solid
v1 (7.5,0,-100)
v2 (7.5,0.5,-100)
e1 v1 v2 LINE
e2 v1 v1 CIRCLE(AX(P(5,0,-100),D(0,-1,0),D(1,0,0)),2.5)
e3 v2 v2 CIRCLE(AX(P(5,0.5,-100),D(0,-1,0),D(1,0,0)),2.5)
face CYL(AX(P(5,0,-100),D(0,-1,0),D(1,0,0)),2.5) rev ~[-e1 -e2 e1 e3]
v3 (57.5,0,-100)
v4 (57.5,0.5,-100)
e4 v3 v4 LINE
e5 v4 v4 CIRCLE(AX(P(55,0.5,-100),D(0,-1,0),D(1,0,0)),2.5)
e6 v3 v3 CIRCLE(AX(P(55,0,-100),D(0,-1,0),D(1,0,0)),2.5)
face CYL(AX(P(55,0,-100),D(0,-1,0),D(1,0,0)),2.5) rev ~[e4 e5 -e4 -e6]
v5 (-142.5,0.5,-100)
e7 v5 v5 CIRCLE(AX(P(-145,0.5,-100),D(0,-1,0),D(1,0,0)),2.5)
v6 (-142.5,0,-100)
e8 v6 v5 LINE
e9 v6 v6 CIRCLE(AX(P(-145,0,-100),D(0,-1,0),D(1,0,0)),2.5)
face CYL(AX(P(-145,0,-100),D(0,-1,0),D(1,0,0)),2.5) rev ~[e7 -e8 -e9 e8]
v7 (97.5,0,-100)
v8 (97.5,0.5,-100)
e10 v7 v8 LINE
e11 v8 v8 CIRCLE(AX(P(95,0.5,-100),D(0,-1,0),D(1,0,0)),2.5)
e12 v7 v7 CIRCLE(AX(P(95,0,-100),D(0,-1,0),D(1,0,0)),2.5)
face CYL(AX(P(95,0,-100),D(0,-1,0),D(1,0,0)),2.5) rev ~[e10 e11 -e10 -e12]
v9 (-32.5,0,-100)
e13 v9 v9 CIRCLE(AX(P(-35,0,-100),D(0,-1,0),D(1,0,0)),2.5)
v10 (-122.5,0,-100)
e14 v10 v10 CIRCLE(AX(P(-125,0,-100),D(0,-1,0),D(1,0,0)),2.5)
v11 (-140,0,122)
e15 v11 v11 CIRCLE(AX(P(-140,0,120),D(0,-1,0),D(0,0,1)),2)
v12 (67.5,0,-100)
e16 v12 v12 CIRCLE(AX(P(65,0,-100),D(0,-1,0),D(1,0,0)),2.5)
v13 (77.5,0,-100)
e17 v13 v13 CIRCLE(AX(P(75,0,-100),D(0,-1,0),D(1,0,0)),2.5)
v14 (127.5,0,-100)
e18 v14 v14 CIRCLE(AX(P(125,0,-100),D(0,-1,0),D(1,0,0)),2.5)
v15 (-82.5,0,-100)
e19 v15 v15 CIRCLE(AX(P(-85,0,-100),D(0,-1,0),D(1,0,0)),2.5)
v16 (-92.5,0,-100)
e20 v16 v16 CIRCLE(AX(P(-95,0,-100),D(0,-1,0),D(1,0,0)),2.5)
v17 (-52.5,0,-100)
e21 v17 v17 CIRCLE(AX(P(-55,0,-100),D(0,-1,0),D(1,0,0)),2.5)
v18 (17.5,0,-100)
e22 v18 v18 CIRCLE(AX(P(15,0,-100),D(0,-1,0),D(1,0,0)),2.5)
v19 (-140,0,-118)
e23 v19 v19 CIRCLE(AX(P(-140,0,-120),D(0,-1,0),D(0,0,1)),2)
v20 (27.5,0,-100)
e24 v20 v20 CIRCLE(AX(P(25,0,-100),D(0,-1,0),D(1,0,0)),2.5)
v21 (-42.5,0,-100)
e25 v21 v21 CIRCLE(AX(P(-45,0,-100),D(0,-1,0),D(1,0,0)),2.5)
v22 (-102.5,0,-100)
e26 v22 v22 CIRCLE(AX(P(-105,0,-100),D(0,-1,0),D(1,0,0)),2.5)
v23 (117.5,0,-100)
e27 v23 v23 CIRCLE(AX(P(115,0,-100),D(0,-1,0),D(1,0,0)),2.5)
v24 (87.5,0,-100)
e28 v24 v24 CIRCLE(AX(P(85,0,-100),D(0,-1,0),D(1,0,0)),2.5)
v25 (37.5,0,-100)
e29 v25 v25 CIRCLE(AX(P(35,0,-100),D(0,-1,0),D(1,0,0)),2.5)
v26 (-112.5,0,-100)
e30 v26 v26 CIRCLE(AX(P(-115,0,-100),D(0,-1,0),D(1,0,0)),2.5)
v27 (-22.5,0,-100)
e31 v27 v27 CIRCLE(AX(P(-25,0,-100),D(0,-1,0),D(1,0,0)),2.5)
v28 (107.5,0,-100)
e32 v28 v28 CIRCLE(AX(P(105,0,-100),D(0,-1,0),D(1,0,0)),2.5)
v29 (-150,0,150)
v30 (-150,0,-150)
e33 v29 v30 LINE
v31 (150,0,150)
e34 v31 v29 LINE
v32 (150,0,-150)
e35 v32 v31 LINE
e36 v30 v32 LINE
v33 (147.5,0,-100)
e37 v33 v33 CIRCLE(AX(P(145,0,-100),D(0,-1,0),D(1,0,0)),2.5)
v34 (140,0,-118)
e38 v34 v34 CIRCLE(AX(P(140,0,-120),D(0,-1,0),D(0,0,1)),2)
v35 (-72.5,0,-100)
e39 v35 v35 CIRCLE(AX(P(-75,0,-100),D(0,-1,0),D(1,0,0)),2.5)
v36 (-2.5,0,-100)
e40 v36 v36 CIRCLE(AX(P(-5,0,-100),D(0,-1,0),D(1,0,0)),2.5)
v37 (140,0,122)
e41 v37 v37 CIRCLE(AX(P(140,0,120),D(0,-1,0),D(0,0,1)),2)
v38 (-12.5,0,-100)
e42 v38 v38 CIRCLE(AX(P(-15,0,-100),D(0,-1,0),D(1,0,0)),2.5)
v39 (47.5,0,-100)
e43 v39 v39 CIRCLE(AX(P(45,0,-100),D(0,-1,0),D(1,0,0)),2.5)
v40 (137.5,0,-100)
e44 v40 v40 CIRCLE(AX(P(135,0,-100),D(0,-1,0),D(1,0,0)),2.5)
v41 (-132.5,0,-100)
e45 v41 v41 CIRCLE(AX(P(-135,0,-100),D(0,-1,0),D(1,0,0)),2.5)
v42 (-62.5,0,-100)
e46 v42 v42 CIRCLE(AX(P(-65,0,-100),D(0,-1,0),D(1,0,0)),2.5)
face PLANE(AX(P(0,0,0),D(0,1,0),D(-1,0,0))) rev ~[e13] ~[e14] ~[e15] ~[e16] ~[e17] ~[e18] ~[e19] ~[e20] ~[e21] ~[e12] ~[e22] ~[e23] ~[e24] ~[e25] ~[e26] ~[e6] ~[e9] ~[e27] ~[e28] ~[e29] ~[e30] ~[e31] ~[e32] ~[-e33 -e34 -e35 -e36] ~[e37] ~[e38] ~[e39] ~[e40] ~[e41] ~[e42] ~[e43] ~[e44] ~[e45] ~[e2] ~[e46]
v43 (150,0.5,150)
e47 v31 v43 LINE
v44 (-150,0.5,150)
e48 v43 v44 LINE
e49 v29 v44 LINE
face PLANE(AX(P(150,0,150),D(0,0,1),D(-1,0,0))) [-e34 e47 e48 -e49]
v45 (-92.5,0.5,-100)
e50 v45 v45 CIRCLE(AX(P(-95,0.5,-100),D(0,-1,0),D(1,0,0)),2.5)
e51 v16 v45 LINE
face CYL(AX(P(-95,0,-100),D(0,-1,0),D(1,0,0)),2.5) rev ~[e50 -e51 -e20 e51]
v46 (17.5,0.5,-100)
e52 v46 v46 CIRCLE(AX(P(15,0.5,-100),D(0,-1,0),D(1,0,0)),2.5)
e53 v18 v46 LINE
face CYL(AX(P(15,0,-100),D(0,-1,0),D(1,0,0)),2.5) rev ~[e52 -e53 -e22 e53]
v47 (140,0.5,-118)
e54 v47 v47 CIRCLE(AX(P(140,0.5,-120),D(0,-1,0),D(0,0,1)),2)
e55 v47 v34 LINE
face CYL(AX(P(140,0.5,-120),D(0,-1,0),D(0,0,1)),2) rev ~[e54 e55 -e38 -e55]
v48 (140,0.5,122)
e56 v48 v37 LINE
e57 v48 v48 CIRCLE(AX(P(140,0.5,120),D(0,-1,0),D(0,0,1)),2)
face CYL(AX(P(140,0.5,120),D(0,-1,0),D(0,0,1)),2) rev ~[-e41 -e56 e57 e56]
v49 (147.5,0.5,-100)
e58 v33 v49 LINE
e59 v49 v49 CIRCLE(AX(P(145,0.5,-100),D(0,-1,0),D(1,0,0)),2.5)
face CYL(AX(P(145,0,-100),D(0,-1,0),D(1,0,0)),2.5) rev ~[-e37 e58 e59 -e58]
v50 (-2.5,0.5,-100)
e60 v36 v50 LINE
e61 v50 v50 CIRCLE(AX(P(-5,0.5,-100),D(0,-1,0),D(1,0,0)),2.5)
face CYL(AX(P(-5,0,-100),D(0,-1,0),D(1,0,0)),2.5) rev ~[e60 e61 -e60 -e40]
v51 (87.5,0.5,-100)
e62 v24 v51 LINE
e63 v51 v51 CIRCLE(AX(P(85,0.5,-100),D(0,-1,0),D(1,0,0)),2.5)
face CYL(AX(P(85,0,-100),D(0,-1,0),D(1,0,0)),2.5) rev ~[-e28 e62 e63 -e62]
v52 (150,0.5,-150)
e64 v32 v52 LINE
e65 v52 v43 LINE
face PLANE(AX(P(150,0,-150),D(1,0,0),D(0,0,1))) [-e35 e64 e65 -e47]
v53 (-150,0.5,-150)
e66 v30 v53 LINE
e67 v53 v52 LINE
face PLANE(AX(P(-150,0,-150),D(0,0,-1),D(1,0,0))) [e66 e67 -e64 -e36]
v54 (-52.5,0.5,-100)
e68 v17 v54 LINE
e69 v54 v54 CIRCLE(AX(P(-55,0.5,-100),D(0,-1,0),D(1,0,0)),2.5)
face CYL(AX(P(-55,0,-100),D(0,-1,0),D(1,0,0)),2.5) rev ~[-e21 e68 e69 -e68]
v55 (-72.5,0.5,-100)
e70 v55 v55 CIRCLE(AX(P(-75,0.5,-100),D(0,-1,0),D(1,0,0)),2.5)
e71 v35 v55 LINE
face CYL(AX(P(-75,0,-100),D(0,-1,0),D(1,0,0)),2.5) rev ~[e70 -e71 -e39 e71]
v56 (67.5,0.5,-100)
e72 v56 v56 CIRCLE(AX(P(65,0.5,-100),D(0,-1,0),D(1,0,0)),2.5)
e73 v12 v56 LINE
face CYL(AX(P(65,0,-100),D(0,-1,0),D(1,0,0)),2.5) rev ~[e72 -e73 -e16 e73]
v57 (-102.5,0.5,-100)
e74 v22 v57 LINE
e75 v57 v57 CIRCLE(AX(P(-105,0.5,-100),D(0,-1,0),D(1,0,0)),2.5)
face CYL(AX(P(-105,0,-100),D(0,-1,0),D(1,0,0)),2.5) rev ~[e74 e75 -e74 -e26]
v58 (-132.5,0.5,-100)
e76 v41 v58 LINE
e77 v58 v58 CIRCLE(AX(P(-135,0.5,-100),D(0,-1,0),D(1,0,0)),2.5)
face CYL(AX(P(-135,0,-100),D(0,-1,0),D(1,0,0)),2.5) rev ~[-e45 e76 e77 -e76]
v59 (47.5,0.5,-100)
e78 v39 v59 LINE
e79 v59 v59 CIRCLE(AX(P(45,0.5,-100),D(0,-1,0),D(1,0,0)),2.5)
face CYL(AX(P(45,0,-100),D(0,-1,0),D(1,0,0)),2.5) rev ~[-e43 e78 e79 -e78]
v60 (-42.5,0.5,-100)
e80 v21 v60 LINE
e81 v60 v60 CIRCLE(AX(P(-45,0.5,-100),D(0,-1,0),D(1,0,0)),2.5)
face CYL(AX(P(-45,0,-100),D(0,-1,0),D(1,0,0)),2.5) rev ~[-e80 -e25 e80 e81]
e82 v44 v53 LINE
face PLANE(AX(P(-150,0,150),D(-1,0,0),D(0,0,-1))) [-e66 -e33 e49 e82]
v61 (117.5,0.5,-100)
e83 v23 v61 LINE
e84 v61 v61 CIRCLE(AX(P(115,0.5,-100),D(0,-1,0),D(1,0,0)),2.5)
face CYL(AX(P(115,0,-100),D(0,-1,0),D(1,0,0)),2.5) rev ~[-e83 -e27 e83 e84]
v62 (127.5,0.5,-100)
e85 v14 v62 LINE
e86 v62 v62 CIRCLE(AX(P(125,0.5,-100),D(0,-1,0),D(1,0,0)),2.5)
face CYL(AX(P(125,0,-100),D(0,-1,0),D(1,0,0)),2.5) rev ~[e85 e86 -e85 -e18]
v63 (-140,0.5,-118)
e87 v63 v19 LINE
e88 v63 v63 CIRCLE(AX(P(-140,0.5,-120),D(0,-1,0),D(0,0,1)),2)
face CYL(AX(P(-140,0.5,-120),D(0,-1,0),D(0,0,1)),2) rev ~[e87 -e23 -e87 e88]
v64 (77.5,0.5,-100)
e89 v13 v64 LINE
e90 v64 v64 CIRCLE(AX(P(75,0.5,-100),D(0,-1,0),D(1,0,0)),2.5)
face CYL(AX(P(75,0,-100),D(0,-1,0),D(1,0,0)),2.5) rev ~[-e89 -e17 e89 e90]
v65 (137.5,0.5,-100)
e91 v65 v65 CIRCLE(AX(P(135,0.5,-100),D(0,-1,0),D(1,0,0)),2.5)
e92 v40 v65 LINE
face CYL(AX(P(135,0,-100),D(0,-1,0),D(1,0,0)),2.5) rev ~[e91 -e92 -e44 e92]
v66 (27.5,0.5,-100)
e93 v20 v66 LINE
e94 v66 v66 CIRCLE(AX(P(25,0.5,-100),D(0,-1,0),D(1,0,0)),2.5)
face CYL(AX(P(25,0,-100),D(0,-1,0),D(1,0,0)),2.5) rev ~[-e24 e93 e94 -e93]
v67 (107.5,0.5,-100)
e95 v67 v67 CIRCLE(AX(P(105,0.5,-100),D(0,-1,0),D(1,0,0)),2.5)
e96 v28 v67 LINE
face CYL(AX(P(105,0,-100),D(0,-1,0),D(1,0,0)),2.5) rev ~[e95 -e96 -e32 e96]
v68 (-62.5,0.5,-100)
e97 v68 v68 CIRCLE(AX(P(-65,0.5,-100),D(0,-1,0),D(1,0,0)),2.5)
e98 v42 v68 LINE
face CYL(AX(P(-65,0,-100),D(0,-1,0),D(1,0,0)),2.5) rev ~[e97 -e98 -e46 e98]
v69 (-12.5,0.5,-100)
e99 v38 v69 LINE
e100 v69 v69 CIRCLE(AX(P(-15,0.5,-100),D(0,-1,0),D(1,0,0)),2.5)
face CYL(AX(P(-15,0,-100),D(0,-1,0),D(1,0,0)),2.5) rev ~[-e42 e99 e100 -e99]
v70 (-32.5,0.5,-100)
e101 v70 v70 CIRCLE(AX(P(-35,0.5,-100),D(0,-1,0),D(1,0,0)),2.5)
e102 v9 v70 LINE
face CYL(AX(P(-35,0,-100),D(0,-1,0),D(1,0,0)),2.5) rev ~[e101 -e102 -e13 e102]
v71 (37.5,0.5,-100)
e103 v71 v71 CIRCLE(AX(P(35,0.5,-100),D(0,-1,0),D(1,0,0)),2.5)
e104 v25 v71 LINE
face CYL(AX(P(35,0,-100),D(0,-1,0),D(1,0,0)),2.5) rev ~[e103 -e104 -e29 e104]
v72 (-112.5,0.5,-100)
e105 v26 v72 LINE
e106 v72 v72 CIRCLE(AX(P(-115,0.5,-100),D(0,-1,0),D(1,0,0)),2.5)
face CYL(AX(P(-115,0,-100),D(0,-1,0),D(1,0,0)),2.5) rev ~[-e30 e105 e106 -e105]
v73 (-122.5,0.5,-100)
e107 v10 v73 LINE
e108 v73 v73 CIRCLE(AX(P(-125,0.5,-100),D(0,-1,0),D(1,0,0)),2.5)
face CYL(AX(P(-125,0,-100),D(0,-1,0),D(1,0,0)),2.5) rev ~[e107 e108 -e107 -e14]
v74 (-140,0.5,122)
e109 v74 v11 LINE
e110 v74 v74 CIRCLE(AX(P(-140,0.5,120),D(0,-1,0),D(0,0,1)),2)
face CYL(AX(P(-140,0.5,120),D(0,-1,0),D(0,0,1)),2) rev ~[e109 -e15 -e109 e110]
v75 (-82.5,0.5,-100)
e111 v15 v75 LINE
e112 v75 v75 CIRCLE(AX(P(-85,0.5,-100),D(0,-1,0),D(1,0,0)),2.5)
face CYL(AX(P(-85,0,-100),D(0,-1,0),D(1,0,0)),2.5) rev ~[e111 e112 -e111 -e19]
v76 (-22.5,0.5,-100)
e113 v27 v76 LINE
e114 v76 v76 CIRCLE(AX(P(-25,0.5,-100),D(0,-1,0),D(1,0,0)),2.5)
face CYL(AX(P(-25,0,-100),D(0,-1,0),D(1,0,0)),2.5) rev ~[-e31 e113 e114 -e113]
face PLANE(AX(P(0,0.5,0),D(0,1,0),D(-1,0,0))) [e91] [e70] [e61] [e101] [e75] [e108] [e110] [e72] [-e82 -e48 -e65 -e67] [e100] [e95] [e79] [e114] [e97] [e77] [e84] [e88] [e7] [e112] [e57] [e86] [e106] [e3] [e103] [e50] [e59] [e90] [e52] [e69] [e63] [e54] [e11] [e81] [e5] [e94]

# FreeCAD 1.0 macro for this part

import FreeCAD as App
import Part
import Sketcher

V = App.Vector
Q = App.Units.Quantity

doc = App.newDocument("Part")
body = doc.addObject("PartDesign::Body", "Body")

sketch1 = body.newObject("Sketcher::SketchObject", "Sketch")
sketch1.AttachmentSupport = (doc.getObject("XZ_Plane"), [""])
sketch1.MapMode = "FlatFace"
sketch1.addGeometry(Part.LineSegment(V(-150, 150, 0), V(150, 150, 0)), False)
sketch1.addGeometry(Part.LineSegment(V(150, 150, 0), V(150, -150, 0)), False)
sketch1.addGeometry(Part.LineSegment(V(150, -150, 0), V(-150, -150, 0)), False)
sketch1.addGeometry(Part.LineSegment(V(-150, -150, 0), V(-150, 150, 0)), False)
sketch1.addConstraint(Sketcher.Constraint("Coincident", 0, 2, 1, 1))
sketch1.addConstraint(Sketcher.Constraint("Coincident", 1, 2, 2, 1))
sketch1.addConstraint(Sketcher.Constraint("Coincident", 2, 2, 3, 1))
sketch1.addConstraint(Sketcher.Constraint("Coincident", 3, 2, 0, 1))
sketch1.addConstraint(Sketcher.Constraint("Horizontal", 0))
sketch1.addConstraint(Sketcher.Constraint("Vertical", 1))
sketch1.addConstraint(Sketcher.Constraint("Horizontal", 2))
sketch1.addConstraint(Sketcher.Constraint("Vertical", 3))
sketch1.addConstraint(Sketcher.Constraint("Symmetric", 0, 2, 2, 2, -1, 1))
sketch1.addConstraint(Sketcher.Constraint("Equal", 2, 1))
sketch1.addConstraint(Sketcher.Constraint("DistanceX", 0, 1, 0, 2, Q("300 mm")))
pad1 = body.newObject("PartDesign::Pad", "Pad")
pad1.Profile = sketch1
pad1.Length = 0.5
pad1.Reversed = True

sketch2 = body.newObject("Sketcher::SketchObject", "Sketch001")
sketch2.AttachmentSupport = (doc.getObject("XZ_Plane"), [""])
sketch2.MapMode = "FlatFace"
sketch2.AttachmentOffset = App.Placement(V(0, 0, -0.5), App.Rotation())
sketch2.addGeometry(Part.Circle(V(-140, 120, 0), V(0, 0, 1), 2), False)
sketch2.addGeometry(Part.Circle(V(140, 120, 0), V(0, 0, 1), 2), False)
sketch2.addGeometry(Part.Circle(V(-140, -120, 0), V(0, 0, 1), 2), False)
sketch2.addGeometry(Part.Circle(V(140, -120, 0), V(0, 0, 1), 2), False)
sketch2.addConstraint(Sketcher.Constraint("Equal", 0, 1))
sketch2.addConstraint(Sketcher.Constraint("Equal", 1, 2))
sketch2.addConstraint(Sketcher.Constraint("Equal", 2, 3))
sketch2.addConstraint(Sketcher.Constraint("Symmetric", 1, 3, 2, 3, -1, 1))
sketch2.addConstraint(Sketcher.Constraint("Symmetric", 0, 3, 3, 3, -1, 1))
sketch2.addConstraint(Sketcher.Constraint("Symmetric", 0, 3, 1, 3, -2))
sketch2.addConstraint(Sketcher.Constraint("Diameter", 0, Q("4 mm")))
sketch2.addConstraint(Sketcher.Constraint("DistanceX", 0, 3, -1, 1, Q("140 mm")))
sketch2.addConstraint(Sketcher.Constraint("DistanceY", -1, 1, 0, 3, Q("120 mm")))
doc.recompute()
hole = body.newObject("PartDesign::Hole", "Hole")
hole.Profile = sketch2
hole.ThreadType = "None"
hole.Diameter = 4
hole.DepthType = "ThroughAll"
hole.Reversed = True

sketch3 = body.newObject("Sketcher::SketchObject", "Sketch002")
sketch3.AttachmentSupport = (doc.getObject("XZ_Plane"), [""])
sketch3.MapMode = "FlatFace"
sketch3.addGeometry(Part.Circle(V(-145, -100, 0), V(0, 0, 1), 2.5), False)
sketch3.addConstraint(Sketcher.Constraint("Diameter", 0, Q("5 mm")))
sketch3.addConstraint(Sketcher.Constraint("DistanceX", 0, 3, -1, 1, Q("145 mm")))
sketch3.addConstraint(Sketcher.Constraint("DistanceY", 0, 3, -1, 1, Q("100 mm")))
pocket1 = body.newObject("PartDesign::Pocket", "Pocket")
pocket1.Profile = sketch3
pocket1.Length = 0.5
doc.recompute()

linearpattern = body.newObject("PartDesign::LinearPattern", "LinearPattern")
linearpattern.Originals = [pocket1]
linearpattern.Direction = (doc.getObject("X_Axis"), [""])
linearpattern.Mode = "offset"
linearpattern.Offset = 10
linearpattern.Occurrences = 30
body.Tip = linearpattern

doc.recompute()
